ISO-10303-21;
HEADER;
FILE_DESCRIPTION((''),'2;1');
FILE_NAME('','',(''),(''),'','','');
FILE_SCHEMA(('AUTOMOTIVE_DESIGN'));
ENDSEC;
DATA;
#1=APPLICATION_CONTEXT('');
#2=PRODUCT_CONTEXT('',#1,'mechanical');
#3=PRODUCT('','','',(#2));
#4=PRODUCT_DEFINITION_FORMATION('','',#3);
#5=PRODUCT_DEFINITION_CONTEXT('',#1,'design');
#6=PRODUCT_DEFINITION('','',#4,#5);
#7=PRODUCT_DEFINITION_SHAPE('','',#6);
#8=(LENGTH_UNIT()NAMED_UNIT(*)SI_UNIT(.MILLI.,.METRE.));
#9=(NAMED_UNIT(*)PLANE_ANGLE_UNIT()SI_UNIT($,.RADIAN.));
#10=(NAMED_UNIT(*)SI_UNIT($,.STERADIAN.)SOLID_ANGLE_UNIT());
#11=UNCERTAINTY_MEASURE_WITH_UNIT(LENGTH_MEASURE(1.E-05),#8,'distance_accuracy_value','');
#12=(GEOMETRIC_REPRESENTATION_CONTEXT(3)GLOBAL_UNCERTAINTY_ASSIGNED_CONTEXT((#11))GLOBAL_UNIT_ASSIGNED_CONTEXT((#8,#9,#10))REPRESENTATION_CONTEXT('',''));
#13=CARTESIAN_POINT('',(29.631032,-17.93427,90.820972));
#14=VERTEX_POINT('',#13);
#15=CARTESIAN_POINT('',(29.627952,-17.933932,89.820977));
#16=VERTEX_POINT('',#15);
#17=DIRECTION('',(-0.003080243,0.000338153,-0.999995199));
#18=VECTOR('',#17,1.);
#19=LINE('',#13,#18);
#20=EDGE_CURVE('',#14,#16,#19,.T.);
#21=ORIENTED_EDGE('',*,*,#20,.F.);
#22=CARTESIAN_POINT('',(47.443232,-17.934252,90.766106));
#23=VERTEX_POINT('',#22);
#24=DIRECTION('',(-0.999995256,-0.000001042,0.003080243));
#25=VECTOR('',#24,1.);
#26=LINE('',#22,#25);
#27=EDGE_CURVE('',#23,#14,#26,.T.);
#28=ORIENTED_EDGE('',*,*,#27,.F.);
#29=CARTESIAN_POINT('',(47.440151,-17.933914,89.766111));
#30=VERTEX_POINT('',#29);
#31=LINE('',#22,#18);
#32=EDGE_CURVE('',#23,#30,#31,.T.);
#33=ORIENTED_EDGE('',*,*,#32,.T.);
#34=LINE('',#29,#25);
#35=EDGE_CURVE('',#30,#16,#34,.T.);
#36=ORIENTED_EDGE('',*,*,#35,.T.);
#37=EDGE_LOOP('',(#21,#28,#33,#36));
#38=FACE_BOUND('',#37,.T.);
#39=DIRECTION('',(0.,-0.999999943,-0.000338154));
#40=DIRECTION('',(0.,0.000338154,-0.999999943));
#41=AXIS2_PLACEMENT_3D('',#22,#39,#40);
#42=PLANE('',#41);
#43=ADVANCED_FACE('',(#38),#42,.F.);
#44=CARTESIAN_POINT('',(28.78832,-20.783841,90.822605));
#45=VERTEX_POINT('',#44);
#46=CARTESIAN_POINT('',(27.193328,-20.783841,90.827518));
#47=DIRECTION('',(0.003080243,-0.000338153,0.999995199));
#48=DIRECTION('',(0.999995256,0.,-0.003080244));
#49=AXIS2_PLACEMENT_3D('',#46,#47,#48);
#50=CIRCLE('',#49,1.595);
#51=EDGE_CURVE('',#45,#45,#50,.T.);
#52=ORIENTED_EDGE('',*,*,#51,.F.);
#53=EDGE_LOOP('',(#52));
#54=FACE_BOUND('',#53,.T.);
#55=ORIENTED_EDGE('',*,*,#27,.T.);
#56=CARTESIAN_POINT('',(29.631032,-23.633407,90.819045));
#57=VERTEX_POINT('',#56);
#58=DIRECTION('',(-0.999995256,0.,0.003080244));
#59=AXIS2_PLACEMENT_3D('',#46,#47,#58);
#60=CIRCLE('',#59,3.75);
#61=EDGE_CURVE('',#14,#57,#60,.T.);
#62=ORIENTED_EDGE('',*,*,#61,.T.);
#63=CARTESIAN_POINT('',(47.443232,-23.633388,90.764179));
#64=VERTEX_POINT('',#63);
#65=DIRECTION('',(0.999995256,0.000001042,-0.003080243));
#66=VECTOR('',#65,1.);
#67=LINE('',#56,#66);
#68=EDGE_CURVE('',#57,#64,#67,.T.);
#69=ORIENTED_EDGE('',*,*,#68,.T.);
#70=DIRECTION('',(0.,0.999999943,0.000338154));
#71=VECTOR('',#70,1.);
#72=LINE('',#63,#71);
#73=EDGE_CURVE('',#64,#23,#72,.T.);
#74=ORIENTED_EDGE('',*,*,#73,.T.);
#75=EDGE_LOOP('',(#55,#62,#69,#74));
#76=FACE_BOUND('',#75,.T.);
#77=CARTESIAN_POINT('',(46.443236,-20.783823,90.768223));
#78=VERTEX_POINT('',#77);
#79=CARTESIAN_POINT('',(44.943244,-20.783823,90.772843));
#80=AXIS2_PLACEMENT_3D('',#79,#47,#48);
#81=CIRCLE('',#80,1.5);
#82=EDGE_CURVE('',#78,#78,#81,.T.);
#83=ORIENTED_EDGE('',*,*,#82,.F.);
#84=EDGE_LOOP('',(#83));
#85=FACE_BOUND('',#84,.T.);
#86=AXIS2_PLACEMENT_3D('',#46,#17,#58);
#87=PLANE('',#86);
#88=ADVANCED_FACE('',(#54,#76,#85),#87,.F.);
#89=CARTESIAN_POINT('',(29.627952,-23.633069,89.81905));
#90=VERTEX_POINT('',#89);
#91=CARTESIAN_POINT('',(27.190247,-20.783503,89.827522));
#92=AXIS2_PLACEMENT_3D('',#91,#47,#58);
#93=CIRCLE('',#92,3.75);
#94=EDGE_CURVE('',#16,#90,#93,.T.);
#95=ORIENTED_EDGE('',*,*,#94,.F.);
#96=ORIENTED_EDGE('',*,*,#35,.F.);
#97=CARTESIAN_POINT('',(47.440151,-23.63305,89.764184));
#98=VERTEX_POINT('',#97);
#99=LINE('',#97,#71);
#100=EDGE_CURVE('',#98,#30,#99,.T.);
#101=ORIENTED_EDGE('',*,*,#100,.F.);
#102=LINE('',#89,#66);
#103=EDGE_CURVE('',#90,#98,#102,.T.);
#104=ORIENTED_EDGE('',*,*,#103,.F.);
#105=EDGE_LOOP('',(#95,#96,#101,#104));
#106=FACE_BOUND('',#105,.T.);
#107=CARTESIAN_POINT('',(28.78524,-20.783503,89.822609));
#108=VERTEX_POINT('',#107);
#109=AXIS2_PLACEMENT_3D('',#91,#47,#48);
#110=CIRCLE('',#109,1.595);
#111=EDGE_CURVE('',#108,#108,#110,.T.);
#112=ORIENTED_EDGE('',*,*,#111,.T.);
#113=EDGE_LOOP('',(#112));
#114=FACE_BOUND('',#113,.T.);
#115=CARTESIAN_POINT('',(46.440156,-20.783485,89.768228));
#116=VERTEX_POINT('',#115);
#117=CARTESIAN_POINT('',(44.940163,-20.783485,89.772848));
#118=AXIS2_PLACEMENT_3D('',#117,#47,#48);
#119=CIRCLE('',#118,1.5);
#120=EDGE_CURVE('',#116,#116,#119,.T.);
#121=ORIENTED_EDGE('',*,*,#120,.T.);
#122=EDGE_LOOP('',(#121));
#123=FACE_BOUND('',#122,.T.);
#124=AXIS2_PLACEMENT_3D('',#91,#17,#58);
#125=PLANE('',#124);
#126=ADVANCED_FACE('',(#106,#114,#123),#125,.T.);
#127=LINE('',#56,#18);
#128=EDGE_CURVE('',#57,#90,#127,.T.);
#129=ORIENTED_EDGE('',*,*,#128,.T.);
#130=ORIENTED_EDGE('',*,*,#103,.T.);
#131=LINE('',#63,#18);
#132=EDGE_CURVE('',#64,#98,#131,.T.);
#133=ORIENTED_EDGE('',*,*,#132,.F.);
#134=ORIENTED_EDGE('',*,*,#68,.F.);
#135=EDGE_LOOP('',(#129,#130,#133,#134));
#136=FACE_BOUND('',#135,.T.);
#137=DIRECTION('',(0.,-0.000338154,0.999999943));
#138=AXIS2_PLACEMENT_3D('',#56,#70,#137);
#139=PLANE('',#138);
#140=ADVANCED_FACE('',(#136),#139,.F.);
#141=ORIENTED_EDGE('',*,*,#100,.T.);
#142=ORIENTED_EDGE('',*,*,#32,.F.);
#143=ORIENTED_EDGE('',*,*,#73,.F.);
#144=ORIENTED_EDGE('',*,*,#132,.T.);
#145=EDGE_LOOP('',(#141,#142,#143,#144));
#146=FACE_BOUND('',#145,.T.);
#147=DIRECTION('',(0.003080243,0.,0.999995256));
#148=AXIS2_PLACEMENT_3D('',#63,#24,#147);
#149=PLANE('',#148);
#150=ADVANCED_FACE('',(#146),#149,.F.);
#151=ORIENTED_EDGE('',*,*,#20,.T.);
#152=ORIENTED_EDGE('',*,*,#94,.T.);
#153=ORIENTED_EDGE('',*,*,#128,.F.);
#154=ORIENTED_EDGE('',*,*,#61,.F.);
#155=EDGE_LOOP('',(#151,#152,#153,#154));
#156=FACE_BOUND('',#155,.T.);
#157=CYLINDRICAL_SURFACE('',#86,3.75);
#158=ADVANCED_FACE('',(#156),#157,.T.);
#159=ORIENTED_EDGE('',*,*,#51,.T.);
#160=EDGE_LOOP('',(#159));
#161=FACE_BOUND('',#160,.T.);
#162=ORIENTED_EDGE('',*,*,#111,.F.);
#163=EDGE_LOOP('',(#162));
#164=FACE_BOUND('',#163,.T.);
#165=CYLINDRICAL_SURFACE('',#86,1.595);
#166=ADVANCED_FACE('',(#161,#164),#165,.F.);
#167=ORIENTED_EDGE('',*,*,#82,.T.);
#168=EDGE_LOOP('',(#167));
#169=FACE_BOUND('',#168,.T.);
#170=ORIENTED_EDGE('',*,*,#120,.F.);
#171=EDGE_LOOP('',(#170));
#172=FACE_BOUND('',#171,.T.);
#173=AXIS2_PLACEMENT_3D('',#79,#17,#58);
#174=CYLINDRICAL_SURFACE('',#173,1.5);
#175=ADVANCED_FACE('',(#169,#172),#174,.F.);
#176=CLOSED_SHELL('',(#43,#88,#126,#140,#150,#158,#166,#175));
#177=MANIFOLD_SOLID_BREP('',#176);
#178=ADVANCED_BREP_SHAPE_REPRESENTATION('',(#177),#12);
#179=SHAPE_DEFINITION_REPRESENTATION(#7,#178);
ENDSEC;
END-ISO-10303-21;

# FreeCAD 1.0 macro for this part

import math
import FreeCAD as App
import Part
import Sketcher

V = App.Vector

doc = App.newDocument("Part")
body = doc.addObject("PartDesign::Body", "Body")

sketch1 = body.newObject("Sketcher::SketchObject", "Sketch")
sketch1.Placement = App.Placement(V(0.276969, -0.030406, 89.91744), App.Rotation(V(0.999995256, 0.000001042, -0.003080243), V(0, 0.999999943, 0.000338155), V(0.003080243, -0.000338153, 0.999995199), "ZXY"))
sketch1.addGeometry(Part.LineSegment(V(29.351122, -23.602695, 0), V(47.163406, -23.602695, 0)), False)
sketch1.addGeometry(Part.LineSegment(V(47.163406, -23.602695, 0), V(47.163406, -17.903558, 0)), False)
sketch1.addGeometry(Part.LineSegment(V(47.163406, -17.903558, 0), V(29.351122, -17.903558, 0)), False)
sketch1.addGeometry(Part.ArcOfCircle(Part.Circle(V(26.913406, -20.753126, 0), V(0, 0, 1), 3.75), math.radians(49.454052), math.radians(310.545948)), False)
sketch1.addGeometry(Part.Circle(V(26.913406, -20.753126, 0), V(0, 0, 1), 1.595), False)
sketch1.addGeometry(Part.Circle(V(44.663406, -20.753126, 0), V(0, 0, 1), 1.5), False)
sketch1.addConstraint(Sketcher.Constraint("Coincident", 0, 2, 1, 1))
sketch1.addConstraint(Sketcher.Constraint("Coincident", 1, 2, 2, 1))
sketch1.addConstraint(Sketcher.Constraint("Coincident", 2, 2, 3, 1))
sketch1.addConstraint(Sketcher.Constraint("Coincident", 3, 2, 0, 1))
sketch1.addConstraint(Sketcher.Constraint("Horizontal", 0))
sketch1.addConstraint(Sketcher.Constraint("Vertical", 1))
sketch1.addConstraint(Sketcher.Constraint("Horizontal", 2))
sketch1.addConstraint(Sketcher.Constraint("Coincident", 4, 3, 3, 3))
sketch1.addConstraint(Sketcher.Constraint("Horizontal", 4, 3, 5, 3))
sketch1.addConstraint(Sketcher.Constraint("Vertical", 2, 2, 3, 2))
sketch1.addConstraint(Sketcher.Constraint("Diameter", 5, 3.0))
sketch1.addConstraint(Sketcher.Constraint("Diameter", 4, 3.19))
sketch1.addConstraint(Sketcher.Constraint("Radius", 3, 3.75))
sketch1.addConstraint(Sketcher.Constraint("DistanceX", 5, 3, 0, 2, 2.5))
sketch1.addConstraint(Sketcher.Constraint("DistanceX", 3, 3, 5, 3, 17.75))
sketch1.addConstraint(Sketcher.Constraint("DistanceX", 0, 1, 0, 2, 17.812284))
sketch1.addConstraint(Sketcher.Constraint("DistanceX", -1, 1, 3, 3, 26.913406))
sketch1.addConstraint(Sketcher.Constraint("DistanceY", 3, 3, -1, 1, 20.753126))
pad1 = body.newObject("PartDesign::Pad", "Pad")
pad1.Profile = sketch1
pad1.Length = 1

doc.recompute()
